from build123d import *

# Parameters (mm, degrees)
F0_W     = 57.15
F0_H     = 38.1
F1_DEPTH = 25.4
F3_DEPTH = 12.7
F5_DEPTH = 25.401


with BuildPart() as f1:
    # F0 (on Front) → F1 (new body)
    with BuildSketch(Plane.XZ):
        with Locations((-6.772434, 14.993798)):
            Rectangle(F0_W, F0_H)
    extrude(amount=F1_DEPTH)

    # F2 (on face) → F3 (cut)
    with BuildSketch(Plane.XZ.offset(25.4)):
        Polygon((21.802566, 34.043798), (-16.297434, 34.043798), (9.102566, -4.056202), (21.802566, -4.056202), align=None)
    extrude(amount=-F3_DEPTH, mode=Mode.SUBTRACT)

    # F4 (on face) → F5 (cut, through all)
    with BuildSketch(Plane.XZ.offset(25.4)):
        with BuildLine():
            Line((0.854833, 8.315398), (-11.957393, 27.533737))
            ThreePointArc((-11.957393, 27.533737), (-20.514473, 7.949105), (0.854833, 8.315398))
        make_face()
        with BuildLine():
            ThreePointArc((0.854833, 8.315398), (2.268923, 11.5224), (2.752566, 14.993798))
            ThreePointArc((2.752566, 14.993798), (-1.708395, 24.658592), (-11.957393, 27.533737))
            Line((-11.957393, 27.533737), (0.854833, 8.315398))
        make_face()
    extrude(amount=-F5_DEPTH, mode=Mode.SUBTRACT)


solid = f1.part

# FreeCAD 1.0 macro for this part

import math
import FreeCAD as App
import Part
import Sketcher

V = App.Vector
Q = App.Units.Quantity


def add_polygon(sketch, points):
    """Adds a closed chain of lines whose ends are joined by coincident constraints."""
    first, n = sketch.GeometryCount, len(points)
    for a, b in zip(points, points[1:] + points[:1]):
        sketch.addGeometry(Part.LineSegment(App.Vector(*a, 0), App.Vector(*b, 0)), False)
    for i in range(n):
        sketch.addConstraint(Sketcher.Constraint("Coincident", first + i, 2, first + (i + 1) % n, 1))

doc = App.newDocument("Part")
body = doc.addObject("PartDesign::Body", "Body")

# Sketch on XZ plane
sketch1 = body.newObject("Sketcher::SketchObject", "Sketch")
sketch1.AttachmentSupport = (doc.getObject("XZ_Plane"), [""])
sketch1.MapMode = "FlatFace"
add_polygon(sketch1, [(-35.347434, 34.043798), (-35.347434, -4.056202), (21.802566, -4.056202), (21.802566, 34.043798)])  # lines 0-3
sketch1.addConstraint([
    Sketcher.Constraint("Vertical", 0),
    Sketcher.Constraint("Horizontal", 1),
    Sketcher.Constraint("Vertical", 2),
    Sketcher.Constraint("Horizontal", 3),
    Sketcher.Constraint("DistanceY", 0, 2, 0, 1, Q("1.5 in")),
    Sketcher.Constraint("DistanceX", 1, 1, 1, 2, Q("2.25 in")),
    Sketcher.Constraint("DistanceY", -1, 1, 2, 2, Q("34.043798 mm")),
    Sketcher.Constraint("DistanceX", 0, 2, -1, 1, Q("35.347434 mm")),
])
pad1 = body.newObject("PartDesign::Pad", "Pad")
pad1.Profile = sketch1
pad1.Length = Q("1 in")

# Sketch on XZ plane
sketch2 = body.newObject("Sketcher::SketchObject", "Sketch001")
sketch2.AttachmentSupport = (doc.getObject("XZ_Plane"), [""])
sketch2.MapMode = "FlatFace"
sketch2.AttachmentOffset = App.Placement(V(0, 0, 1 * 25.4), App.Rotation())
add_polygon(sketch2, [(21.802566, 34.043798), (-16.297434, 34.043798), (9.102566, -4.056202), (21.802566, -4.056202)])  # lines 0-3
sketch2.addConstraint([
    Sketcher.Constraint("Horizontal", 0),
    Sketcher.Constraint("Horizontal", 2),
    Sketcher.Constraint("Vertical", 3),
    Sketcher.Constraint("Equal", 0, 3),
    Sketcher.Constraint("DistanceX", 0, 2, 0, 1, Q("1.5 in")),
    Sketcher.Constraint("DistanceX", 2, 1, 2, 2, Q("0.5 in")),
    Sketcher.Constraint("DistanceY", -1, 1, 0, 2, Q("34.043798 mm")),
    Sketcher.Constraint("DistanceX", 0, 2, -1, 1, Q("16.297434 mm")),
])
pocket1 = body.newObject("PartDesign::Pocket", "Pocket")
pocket1.Profile = sketch2
pocket1.Length = Q("0.5 in")

# Sketch on XZ plane
sketch3 = body.newObject("Sketcher::SketchObject", "Sketch002")
sketch3.AttachmentSupport = (doc.getObject("XZ_Plane"), [""])
sketch3.MapMode = "FlatFace"
sketch3.AttachmentOffset = App.Placement(V(0, 0, 1 * 25.4), App.Rotation())
sketch3.addGeometry([
    Part.ArcOfCircle(Part.Circle(V(-9.947434, 14.993798, 0), V(0, 0, 1), 12.7), math.radians(99.106174), math.radians(328.273961)),
    Part.ArcOfCircle(Part.Circle(V(-9.947451, 14.993803, 0), V(0, 0, 1), 12.700017), math.radians(-31.726018), math.radians(-0.000022)),
    Part.ArcOfCircle(Part.Circle(V(-9.947434, 14.993798, 0), V(0, 0, 1), 12.7), math.radians(-0.000002), math.radians(99.106176)),
], False)
sketch3.addConstraint([
    Sketcher.Constraint("Tangent", 0, 2, 1, 1),
    Sketcher.Constraint("Tangent", 1, 2, 2, 1),
    Sketcher.Constraint("Tangent", 2, 2, 0, 1),
    Sketcher.Constraint("Horizontal", 2, 3, 1, 2),
    Sketcher.Constraint("Radius", 0, Q("0.5 in")),
    Sketcher.Constraint("DistanceY", -1, 1, 2, 3, Q("14.993798 mm")),
    Sketcher.Constraint("DistanceY", -1, 1, 0, 2, Q("8.315398 mm")),
    Sketcher.Constraint("DistanceX", 1, 3, -1, 1, Q("9.947451 mm")),
    Sketcher.Constraint("DistanceX", 2, 2, 2, 3, Q("2.009959 mm")),
])
pocket2 = body.newObject("PartDesign::Pocket", "Pocket001")
pocket2.Profile = sketch3
pocket2.Type = "ThroughAll"

doc.recompute()
